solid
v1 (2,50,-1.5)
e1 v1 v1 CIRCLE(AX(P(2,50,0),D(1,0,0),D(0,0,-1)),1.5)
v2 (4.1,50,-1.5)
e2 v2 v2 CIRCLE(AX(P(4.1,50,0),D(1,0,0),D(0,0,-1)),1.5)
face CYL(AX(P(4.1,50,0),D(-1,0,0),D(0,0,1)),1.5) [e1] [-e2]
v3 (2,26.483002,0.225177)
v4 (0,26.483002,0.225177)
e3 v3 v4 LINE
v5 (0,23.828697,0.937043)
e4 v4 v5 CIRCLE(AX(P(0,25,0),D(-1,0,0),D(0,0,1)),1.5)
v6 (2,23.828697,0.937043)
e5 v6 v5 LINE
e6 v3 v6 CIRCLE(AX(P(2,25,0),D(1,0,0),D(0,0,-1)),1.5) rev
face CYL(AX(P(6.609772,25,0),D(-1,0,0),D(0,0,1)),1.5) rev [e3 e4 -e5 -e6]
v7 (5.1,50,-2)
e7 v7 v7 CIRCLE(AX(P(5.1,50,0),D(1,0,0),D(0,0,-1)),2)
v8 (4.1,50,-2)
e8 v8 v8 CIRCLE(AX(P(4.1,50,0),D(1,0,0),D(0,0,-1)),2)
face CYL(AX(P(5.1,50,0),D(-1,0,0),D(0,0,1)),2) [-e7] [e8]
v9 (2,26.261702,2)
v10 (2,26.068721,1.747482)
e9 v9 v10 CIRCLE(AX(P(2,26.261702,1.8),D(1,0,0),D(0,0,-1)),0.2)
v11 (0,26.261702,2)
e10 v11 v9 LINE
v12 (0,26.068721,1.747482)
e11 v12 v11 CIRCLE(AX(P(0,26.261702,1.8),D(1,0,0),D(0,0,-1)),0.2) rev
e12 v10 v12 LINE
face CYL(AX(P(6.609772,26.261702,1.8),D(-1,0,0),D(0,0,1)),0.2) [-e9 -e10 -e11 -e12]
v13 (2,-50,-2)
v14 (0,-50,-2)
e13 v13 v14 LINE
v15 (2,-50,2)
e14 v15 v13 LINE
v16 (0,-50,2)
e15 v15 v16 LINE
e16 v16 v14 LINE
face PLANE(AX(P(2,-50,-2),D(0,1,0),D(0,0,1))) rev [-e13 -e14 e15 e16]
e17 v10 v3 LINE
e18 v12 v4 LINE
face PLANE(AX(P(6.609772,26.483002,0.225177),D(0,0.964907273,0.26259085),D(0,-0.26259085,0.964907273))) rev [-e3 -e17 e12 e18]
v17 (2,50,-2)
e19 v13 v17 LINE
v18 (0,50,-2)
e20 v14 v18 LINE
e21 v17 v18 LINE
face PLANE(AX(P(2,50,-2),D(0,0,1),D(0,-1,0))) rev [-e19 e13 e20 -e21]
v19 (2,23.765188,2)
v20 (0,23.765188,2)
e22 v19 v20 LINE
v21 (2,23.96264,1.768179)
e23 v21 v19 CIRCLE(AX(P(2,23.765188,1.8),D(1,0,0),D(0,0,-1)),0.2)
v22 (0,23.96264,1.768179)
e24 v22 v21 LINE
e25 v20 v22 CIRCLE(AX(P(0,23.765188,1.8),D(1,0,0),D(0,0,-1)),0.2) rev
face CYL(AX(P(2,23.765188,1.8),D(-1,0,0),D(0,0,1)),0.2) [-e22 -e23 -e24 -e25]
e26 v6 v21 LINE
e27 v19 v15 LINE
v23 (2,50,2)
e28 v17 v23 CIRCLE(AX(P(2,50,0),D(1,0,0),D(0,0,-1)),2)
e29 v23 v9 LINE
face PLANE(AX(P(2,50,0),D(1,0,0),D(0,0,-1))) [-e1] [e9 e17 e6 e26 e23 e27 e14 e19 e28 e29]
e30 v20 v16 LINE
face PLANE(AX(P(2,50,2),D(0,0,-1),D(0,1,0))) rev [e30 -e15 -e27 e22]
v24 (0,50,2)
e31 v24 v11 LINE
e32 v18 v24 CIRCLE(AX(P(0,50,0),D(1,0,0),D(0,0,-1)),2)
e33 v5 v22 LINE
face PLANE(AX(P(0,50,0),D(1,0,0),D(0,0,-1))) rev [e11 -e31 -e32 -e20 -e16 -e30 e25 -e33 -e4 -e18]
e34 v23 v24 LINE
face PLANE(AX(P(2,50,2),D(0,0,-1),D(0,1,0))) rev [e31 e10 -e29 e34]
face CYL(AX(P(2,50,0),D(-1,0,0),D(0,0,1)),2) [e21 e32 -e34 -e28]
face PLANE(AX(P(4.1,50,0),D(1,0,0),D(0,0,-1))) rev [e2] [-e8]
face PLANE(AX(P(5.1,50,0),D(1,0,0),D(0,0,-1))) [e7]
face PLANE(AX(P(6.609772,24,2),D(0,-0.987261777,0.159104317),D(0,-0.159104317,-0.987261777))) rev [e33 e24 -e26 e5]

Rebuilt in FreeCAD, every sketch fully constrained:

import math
import FreeCAD as App
import Part
import Sketcher


def edges_at(feature, points):
    """Names of the edges that pass closest to the given points."""
    edges = feature.Shape.Edges
    near = lambda p: min(range(len(edges)), key=lambda i: edges[i].distToShape(Part.Vertex(*p))[0])
    return sorted({f"Edge{near(p) + 1}" for p in points})

doc = App.newDocument("Part")
body = doc.addObject("PartDesign::Body", "Body")

# Sketch on YZ plane
sketch1 = body.newObject("Sketcher::SketchObject", "Sketch")
sketch1.AttachmentSupport = (doc.getObject("YZ_Plane"), [""])
sketch1.MapMode = "FlatFace"
sketch1.addGeometry([
    Part.LineSegment(App.Vector(-50, -2, 0), App.Vector(50, -2, 0)),
    Part.ArcOfCircle(Part.Circle(App.Vector(50, 0, 0), App.Vector(0, 0, 1), 2), math.radians(-90), math.radians(90)),
    Part.LineSegment(App.Vector(50, 2, 0), App.Vector(-50, 2, 0)),
    Part.LineSegment(App.Vector(-50, 2, 0), App.Vector(-50, -2, 0)),
], False)
sketch1.addConstraint([
    Sketcher.Constraint("Tangent", 0, 2, 1, 1),
    Sketcher.Constraint("Tangent", 1, 2, 2, 1),
    Sketcher.Constraint("Coincident", 2, 2, 3, 1),
    Sketcher.Constraint("Coincident", 3, 2, 0, 1),
    Sketcher.Constraint("Horizontal", 0),
    Sketcher.Constraint("Horizontal", 2),
    Sketcher.Constraint("Vertical", 3),
    Sketcher.Constraint("Symmetric", 0, 2, 2, 2, -1, 1),
    Sketcher.Constraint("Radius", 1, 2.0),
    Sketcher.Constraint("DistanceX", 0, 1, 0, 2, 100.0),
])
pad1 = body.newObject("PartDesign::Pad", "Pad")
pad1.Profile = sketch1
pad1.Length = 2

# Sketch on YZ plane
sketch2 = body.newObject("Sketcher::SketchObject", "Sketch001")
sketch2.AttachmentSupport = (doc.getObject("YZ_Plane"), [""])
sketch2.MapMode = "FlatFace"
sketch2.AttachmentOffset = App.Placement(App.Vector(0, 0, 2), App.Rotation())
sketch2.addGeometry(Part.Circle(App.Vector(50, 0, 0), App.Vector(0, 0, 1), 1.5), False)
sketch2.addConstraint([
    Sketcher.Constraint("PointOnObject", 0, 3, -1),
    Sketcher.Constraint("Diameter", 0, 3.0),
    Sketcher.Constraint("DistanceX", -1, 1, 0, 3, 50.0),
])
pad2 = body.newObject("PartDesign::Pad", "Pad001")
pad2.Profile = sketch2
pad2.Length = 2.1

# Sketch on YZ plane
sketch3 = body.newObject("Sketcher::SketchObject", "Sketch002")
sketch3.AttachmentSupport = (doc.getObject("YZ_Plane"), [""])
sketch3.MapMode = "FlatFace"
sketch3.AttachmentOffset = App.Placement(App.Vector(0, 0, 4.1), App.Rotation())
sketch3.addGeometry(Part.Circle(App.Vector(50, 0, 0), App.Vector(0, 0, 1), 2), False)
sketch3.addConstraint([
    Sketcher.Constraint("PointOnObject", 0, 3, -1),
    Sketcher.Constraint("Diameter", 0, 4.0),
    Sketcher.Constraint("DistanceX", -1, 1, 0, 3, 50.0),
])
pad3 = body.newObject("PartDesign::Pad", "Pad002")
pad3.Profile = sketch3
pad3.Length = 1

# Sketch on YZ plane
sketch4 = body.newObject("Sketcher::SketchObject", "Sketch003")
sketch4.AttachmentSupport = (doc.getObject("YZ_Plane"), [""])
sketch4.MapMode = "FlatFace"
sketch4.addGeometry([
    Part.LineSegment(App.Vector(26, 2, 0), App.Vector(26.483002, 0.225177, 0)),
    Part.ArcOfCircle(Part.Circle(App.Vector(25, 0, 0), App.Vector(0, 0, 1), 1.5), math.radians(141.340192), math.radians(368.633768)),
    Part.LineSegment(App.Vector(23.828697, 0.937043, 0), App.Vector(24, 2, 0)),
    Part.LineSegment(App.Vector(24, 2, 0), App.Vector(26, 2, 0)),
], False)
sketch4.addConstraint([
    Sketcher.Constraint("Coincident", 0, 2, 1, 2),
    Sketcher.Constraint("Coincident", 1, 1, 2, 1),
    Sketcher.Constraint("Coincident", 2, 2, 3, 1),
    Sketcher.Constraint("Coincident", 3, 2, 0, 1),
    Sketcher.Constraint("Horizontal", 3),
    Sketcher.Constraint("PointOnObject", 1, 3, -1),
    Sketcher.Constraint("Radius", 1, 1.5),
    Sketcher.Constraint("DistanceX", 3, 1, 3, 2, 2.0),
    Sketcher.Constraint("DistanceX", -1, 1, 1, 3, 25.0),
    Sketcher.Constraint("DistanceX", -1, 1, 2, 2, 24.0),
    Sketcher.Constraint("DistanceY", -1, 1, 2, 2, 2.0),
    Sketcher.Constraint("Distance", 0, 1.839371),
    Sketcher.Constraint("Distance", 2, 1.076672),
])
pocket1 = body.newObject("PartDesign::Pocket", "Pocket")
pocket1.Profile = sketch4
pocket1.Length = 2
pocket1.Reversed = True
doc.recompute()

fillet = body.newObject("PartDesign::Fillet", "Fillet")
fillet.Base = (pocket1, edges_at(pocket1, [(1, 24, 2), (1, 26, 2)]))
fillet.Radius = 0.2

doc.recompute()
